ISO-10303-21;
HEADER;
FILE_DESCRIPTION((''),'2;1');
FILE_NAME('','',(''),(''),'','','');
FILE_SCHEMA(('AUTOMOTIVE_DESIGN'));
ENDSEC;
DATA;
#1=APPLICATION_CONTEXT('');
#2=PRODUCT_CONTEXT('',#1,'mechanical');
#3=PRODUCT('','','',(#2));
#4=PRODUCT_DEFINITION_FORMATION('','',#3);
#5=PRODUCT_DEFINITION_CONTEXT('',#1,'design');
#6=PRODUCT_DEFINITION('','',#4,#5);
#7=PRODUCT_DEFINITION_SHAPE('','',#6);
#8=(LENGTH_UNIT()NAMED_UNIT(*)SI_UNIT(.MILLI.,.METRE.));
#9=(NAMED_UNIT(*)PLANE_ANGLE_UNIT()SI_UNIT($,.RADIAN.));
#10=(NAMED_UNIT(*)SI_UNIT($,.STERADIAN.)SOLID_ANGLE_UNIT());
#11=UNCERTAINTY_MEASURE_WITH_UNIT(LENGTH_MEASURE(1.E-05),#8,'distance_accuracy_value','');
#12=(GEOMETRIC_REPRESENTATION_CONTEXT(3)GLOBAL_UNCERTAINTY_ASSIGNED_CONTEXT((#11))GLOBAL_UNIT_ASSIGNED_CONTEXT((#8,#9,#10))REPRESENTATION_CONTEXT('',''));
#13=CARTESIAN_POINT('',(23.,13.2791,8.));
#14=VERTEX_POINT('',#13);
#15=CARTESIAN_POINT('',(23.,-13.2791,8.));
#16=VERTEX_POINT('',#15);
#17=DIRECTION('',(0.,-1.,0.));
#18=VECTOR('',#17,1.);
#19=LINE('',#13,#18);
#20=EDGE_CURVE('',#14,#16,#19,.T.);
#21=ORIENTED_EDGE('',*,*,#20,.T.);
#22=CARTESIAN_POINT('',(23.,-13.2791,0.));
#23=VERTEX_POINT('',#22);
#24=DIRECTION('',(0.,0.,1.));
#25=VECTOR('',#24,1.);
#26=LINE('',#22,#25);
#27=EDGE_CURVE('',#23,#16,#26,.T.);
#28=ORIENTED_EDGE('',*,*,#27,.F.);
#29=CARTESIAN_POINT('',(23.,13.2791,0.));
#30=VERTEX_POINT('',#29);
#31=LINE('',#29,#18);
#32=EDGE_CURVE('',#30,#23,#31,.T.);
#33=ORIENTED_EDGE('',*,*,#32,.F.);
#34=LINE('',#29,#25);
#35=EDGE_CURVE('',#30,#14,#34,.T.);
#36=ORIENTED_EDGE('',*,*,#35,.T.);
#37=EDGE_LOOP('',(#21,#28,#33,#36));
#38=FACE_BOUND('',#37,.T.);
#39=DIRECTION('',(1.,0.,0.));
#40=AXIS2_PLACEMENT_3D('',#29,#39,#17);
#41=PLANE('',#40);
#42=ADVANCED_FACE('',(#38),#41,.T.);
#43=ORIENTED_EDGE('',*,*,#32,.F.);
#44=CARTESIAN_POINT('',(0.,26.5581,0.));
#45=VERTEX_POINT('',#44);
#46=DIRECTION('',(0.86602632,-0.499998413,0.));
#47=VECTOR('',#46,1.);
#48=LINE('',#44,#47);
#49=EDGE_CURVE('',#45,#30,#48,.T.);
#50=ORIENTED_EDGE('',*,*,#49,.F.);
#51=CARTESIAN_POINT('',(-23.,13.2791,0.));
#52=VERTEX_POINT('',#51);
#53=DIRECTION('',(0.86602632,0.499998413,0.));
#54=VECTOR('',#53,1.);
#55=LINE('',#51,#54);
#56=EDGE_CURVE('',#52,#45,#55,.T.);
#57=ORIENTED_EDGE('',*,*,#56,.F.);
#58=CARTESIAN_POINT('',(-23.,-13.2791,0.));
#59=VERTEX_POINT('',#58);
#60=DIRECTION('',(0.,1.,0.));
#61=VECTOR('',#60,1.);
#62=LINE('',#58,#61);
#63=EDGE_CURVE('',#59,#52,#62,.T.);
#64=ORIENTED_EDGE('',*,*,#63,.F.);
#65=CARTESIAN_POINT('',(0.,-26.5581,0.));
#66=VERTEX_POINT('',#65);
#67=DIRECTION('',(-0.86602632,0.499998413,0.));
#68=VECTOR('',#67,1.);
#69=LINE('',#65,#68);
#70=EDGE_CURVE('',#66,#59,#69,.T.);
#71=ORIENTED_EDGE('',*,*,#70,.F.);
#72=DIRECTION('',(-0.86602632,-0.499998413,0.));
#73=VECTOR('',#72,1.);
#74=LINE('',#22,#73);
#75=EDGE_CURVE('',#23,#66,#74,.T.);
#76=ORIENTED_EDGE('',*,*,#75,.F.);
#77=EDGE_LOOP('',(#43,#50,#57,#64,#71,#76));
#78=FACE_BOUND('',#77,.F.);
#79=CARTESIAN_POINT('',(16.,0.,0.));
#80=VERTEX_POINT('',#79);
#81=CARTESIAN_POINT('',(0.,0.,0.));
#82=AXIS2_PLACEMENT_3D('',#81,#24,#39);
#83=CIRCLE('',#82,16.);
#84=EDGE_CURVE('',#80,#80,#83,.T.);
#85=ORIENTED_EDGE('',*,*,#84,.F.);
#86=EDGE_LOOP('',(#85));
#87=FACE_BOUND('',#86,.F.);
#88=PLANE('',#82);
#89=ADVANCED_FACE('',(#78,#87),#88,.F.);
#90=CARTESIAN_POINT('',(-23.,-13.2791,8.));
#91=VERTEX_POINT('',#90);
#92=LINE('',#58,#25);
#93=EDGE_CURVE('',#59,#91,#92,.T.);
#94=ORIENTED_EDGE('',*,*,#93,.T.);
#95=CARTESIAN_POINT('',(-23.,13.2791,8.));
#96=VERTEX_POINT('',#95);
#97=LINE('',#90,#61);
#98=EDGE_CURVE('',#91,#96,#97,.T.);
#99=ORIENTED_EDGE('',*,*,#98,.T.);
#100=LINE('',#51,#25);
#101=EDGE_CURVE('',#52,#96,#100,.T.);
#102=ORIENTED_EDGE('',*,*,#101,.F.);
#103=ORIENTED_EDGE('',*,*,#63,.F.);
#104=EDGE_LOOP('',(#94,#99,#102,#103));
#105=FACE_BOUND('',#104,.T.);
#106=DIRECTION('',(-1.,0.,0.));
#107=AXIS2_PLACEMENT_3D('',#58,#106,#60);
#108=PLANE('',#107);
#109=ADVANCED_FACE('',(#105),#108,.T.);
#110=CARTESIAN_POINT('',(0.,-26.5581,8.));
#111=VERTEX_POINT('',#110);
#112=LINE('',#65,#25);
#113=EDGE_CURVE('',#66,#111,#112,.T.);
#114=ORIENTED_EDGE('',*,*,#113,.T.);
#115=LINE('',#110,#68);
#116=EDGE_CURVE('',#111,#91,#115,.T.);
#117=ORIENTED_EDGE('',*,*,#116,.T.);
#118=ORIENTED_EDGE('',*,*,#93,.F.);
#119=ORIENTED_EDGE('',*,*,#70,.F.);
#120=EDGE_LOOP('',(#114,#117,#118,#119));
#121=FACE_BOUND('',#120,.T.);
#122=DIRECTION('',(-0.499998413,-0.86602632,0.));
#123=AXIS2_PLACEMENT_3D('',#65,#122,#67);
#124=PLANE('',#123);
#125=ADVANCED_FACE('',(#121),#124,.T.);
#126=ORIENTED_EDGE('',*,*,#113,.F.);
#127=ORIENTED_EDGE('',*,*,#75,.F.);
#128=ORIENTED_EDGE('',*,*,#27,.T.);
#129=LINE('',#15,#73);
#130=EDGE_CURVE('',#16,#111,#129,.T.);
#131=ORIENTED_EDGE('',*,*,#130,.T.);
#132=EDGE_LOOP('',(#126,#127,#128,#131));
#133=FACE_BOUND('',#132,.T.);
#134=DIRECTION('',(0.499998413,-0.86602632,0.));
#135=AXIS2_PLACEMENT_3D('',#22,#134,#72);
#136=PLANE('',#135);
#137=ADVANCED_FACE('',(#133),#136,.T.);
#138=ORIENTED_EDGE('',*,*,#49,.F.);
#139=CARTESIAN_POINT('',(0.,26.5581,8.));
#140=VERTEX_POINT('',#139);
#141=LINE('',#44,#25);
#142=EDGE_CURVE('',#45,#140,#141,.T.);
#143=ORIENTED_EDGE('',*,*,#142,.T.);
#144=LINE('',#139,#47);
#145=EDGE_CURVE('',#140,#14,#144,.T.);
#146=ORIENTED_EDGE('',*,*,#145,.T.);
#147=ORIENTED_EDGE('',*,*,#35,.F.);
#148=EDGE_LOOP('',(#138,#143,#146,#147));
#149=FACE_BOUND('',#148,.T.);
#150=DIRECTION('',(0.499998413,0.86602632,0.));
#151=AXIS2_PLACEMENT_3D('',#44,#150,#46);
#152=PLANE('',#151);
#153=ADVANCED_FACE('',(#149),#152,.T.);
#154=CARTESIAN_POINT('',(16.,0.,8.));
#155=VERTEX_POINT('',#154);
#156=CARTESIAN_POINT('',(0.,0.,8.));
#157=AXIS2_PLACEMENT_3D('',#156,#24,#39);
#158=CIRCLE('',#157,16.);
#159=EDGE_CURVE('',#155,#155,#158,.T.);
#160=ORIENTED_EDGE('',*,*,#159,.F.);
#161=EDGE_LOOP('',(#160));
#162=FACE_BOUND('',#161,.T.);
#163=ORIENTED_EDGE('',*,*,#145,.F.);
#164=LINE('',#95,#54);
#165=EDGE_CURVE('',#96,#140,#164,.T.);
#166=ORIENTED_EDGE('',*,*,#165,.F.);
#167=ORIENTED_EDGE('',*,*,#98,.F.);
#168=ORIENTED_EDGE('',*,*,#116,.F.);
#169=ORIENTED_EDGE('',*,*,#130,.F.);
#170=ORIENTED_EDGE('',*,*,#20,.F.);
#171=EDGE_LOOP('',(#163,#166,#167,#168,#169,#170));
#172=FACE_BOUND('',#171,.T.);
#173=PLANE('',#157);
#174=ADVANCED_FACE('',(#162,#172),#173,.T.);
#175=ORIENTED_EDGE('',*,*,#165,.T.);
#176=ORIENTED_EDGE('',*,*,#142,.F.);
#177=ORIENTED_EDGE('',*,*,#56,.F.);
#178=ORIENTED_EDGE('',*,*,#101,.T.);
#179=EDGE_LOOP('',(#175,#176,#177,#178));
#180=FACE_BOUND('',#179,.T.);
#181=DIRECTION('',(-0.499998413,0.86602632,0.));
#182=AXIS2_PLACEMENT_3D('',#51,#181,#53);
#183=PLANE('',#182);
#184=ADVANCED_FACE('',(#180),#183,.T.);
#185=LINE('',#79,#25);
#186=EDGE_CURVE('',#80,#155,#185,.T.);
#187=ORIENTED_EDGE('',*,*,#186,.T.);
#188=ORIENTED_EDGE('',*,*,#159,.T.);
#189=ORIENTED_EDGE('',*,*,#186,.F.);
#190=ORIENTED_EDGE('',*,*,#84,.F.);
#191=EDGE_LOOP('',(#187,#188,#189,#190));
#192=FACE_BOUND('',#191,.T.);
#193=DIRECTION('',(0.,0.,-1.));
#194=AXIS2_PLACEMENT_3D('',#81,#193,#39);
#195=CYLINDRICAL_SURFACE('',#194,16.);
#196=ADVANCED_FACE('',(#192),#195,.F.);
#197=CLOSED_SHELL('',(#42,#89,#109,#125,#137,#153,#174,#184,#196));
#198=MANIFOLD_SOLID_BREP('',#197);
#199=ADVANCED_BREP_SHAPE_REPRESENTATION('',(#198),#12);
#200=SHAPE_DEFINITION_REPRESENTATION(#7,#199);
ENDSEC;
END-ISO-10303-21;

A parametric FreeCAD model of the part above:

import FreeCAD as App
import Part
import Sketcher
from FreeCAD import Vector
Q = App.Units.Quantity


def add_polygon(sketch, points):
    """Adds a closed chain of lines whose ends are joined by coincident constraints."""
    first, n = sketch.GeometryCount, len(points)
    for a, b in zip(points, points[1:] + points[:1]):
        sketch.addGeometry(Part.LineSegment(App.Vector(*a, 0), App.Vector(*b, 0)), False)
    for i in range(n):
        sketch.addConstraint(Sketcher.Constraint("Coincident", first + i, 2, first + (i + 1) % n, 1))

doc = App.newDocument("Part")
body = doc.addObject("PartDesign::Body", "Body")

# Sketch on XY plane
sketch1 = body.newObject("Sketcher::SketchObject", "Sketch")
sketch1.AttachmentSupport = (doc.getObject("XY_Plane"), [""])
sketch1.MapMode = "FlatFace"
add_polygon(sketch1, [(-23, -13), (0, -27), (23, -13), (23, 13), (0, 27), (-23, 13)])  # lines 0-5
sketch1.addGeometry(Part.Circle(Vector(0, 0, 0), Vector(0, 0, 1), 16), False)  # 6
sketch1.addConstraint(Sketcher.Constraint("Vertical", 2))
sketch1.addConstraint(Sketcher.Constraint("Vertical", 5))
sketch1.addConstraint(Sketcher.Constraint("Coincident", 6, 3, -1, 1))
sketch1.addConstraint(Sketcher.Constraint("Symmetric", 0, 2, 3, 2, -1, 1))
sketch1.addConstraint(Sketcher.Constraint("Symmetric", 1, 2, 4, 2, -1, 1))
sketch1.addConstraint(Sketcher.Constraint("PointOnObject", 0, 2, -2))
sketch1.addConstraint(Sketcher.Constraint("Parallel", 0, 3))
sketch1.addConstraint(Sketcher.Constraint("Horizontal", 2, 2, 4, 2))
sketch1.addConstraint(Sketcher.Constraint("Diameter", 6, 32.0))
sketch1.addConstraint(Sketcher.Constraint("DistanceX", 4, 2, 2, 2, 46.0))
sketch1.addConstraint(Sketcher.Constraint("Angle", 0, Q("-30 deg")))
sketch1.addConstraint(Sketcher.Constraint("DistanceY", 2, 1, 2, 2, 26.5582))
pad1 = body.newObject("PartDesign::Pad", "Pad")
pad1.Profile = sketch1
pad1.Length = 8

doc.recompute()
